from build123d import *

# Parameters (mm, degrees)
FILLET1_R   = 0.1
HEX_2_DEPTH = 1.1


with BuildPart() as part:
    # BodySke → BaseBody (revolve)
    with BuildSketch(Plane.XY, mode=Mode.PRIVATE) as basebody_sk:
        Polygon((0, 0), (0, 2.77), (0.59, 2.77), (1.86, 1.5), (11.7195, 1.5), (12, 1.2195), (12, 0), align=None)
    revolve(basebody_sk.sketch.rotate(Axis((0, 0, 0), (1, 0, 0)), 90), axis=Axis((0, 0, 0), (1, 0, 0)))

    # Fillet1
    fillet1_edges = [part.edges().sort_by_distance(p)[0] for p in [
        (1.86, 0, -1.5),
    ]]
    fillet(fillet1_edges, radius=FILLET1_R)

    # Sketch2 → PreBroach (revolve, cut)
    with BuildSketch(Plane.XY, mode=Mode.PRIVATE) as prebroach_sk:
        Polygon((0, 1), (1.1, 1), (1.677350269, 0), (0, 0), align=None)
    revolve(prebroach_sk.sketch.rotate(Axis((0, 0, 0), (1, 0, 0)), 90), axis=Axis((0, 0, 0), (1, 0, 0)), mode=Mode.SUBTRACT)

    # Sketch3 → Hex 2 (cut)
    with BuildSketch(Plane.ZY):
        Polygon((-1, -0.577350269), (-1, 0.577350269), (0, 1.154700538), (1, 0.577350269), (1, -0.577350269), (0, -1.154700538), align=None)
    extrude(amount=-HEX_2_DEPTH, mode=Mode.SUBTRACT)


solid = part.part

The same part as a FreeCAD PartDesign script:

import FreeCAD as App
import Part
import Sketcher

V = App.Vector
Q = App.Units.Quantity


def edges_at(feature, points):
    """Names of the edges that pass closest to the given points."""
    edges = feature.Shape.Edges
    near = lambda p: min(range(len(edges)), key=lambda i: edges[i].distToShape(Part.Vertex(*p))[0])
    return sorted({f"Edge{near(p) + 1}" for p in points})


def add_polygon(sketch, points):
    """Adds a closed chain of lines whose ends are joined by coincident constraints."""
    first, n = sketch.GeometryCount, len(points)
    for a, b in zip(points, points[1:] + points[:1]):
        sketch.addGeometry(Part.LineSegment(App.Vector(*a, 0), App.Vector(*b, 0)), False)
    for i in range(n):
        sketch.addConstraint(Sketcher.Constraint("Coincident", first + i, 2, first + (i + 1) % n, 1))

doc = App.newDocument("Part")
params = doc.addObject("Spreadsheet::Sheet", "Params")
for row, (alias, value) in enumerate([
    ("sketch1_width", "12 mm"),
    ("sketch1_width2", "0.59 mm"),
    ("sketch1_height", "2.77 mm"),
    ("revolution_angle", "360 deg"),
    ("fillet_radius", "0.1 mm"),
    ("sketch2_height", "1 mm"),
    ("sketch2_width", "1.1 mm"),
    ("groove_angle", "360 deg"),
    ("pocket1_length", "1.1 mm"),
], start=1):
    params.set(f"A{row}", alias)
    params.set(f"B{row}", "=" + value)
    params.setAlias(f"B{row}", alias)

body = doc.addObject("PartDesign::Body", "Body")

# Sketch on XY plane
sketch1 = doc.addObject("Sketcher::SketchObject", "Sketch")
body.addObject(sketch1)
sketch1.AttachmentSupport = (doc.XY_Plane, [""])
sketch1.MapMode = "FlatFace"
add_polygon(sketch1, [(0, 2.77), (0, 0), (12, 0), (12, 1.22), (11.72, 1.5), (1.86, 1.5), (0.59, 2.77)])  # lines 0-6
sketch1.addConstraint(Sketcher.Constraint("Vertical", 0))
sketch1.addConstraint(Sketcher.Constraint("Horizontal", 1))
sketch1.addConstraint(Sketcher.Constraint("Vertical", 2))
sketch1.addConstraint(Sketcher.Constraint("Horizontal", 4))
sketch1.addConstraint(Sketcher.Constraint("Horizontal", 6))
sketch1.addConstraint(Sketcher.Constraint("Coincident", 0, 2, -1, 1))
sketch1.addConstraint(Sketcher.Constraint("Parallel", 3, 5))
sketch1.addConstraint(Sketcher.Constraint("DistanceX", 1, 1, 1, 2, 12.0))
sketch1.addConstraint(Sketcher.Constraint("Angle", 3, Q("135 deg")))
sketch1.addConstraint(Sketcher.Constraint("DistanceX", 6, 2, 6, 1, 0.59))
sketch1.addConstraint(Sketcher.Constraint("DistanceY", 0, 2, 0, 1, 2.77))
sketch1.addConstraint(Sketcher.Constraint("DistanceY", -1, 1, 3, 2, 1.5))
sketch1.addConstraint(Sketcher.Constraint("DistanceX", 4, 2, 4, 1, 9.8595))
sketch1.setExpression("Constraints[14]", "Params.sketch1_width")
sketch1.setExpression("Constraints[16]", "Params.sketch1_width2")
sketch1.setExpression("Constraints[17]", "Params.sketch1_height")
revolution = doc.addObject("PartDesign::Revolution", "Revolution")
body.addObject(revolution)
revolution.Profile = sketch1
revolution.ReferenceAxis = (sketch1, ["H_Axis"])
revolution.setExpression("Angle", "Params.revolution_angle")
doc.recompute()

fillet = doc.addObject("PartDesign::Fillet", "Fillet")
body.addObject(fillet)
fillet.Base = (revolution, edges_at(revolution, [(1.86, 0, -1.5)]))
fillet.setExpression("Radius", "Params.fillet_radius")

# Sketch on XY plane
sketch2 = doc.addObject("Sketcher::SketchObject", "Sketch001")
body.addObject(sketch2)
sketch2.AttachmentSupport = (doc.XY_Plane, [""])
sketch2.MapMode = "FlatFace"
add_polygon(sketch2, [(1.1, 1), (0, 1), (0, 0), (1.7, 0)])  # lines 0-3
sketch2.addConstraint(Sketcher.Constraint("Horizontal", 0))
sketch2.addConstraint(Sketcher.Constraint("Vertical", 1))
sketch2.addConstraint(Sketcher.Constraint("Horizontal", 2))
sketch2.addConstraint(Sketcher.Constraint("Coincident", 1, 2, -1, 1))
sketch2.addConstraint(Sketcher.Constraint("DistanceY", 1, 2, 1, 1, 1.0))
sketch2.addConstraint(Sketcher.Constraint("Angle", 3, Q("120 deg")))
sketch2.addConstraint(Sketcher.Constraint("DistanceX", 0, 2, 0, 1, 1.1))
sketch2.setExpression("Constraints[8]", "Params.sketch2_height")
sketch2.setExpression("Constraints[10]", "Params.sketch2_width")
groove = doc.addObject("PartDesign::Groove", "Groove")
body.addObject(groove)
groove.Profile = sketch2
groove.ReferenceAxis = (sketch2, ["H_Axis"])
groove.setExpression("Angle", "Params.groove_angle")

# Sketch on YZ plane
sketch3 = doc.addObject("Sketcher::SketchObject", "Sketch002")
body.addObject(sketch3)
sketch3.AttachmentSupport = (doc.YZ_Plane, [""])
sketch3.MapMode = "FlatFace"
add_polygon(sketch3, [(0.6, -1), (-0.6, -1), (-1.2, 0), (-0.6, 1), (0.6, 1), (1.2, 0)])  # lines 0-5
sketch3.addConstraint(Sketcher.Constraint("Horizontal", 0))
sketch3.addConstraint(Sketcher.Constraint("Horizontal", 3))
sketch3.addConstraint(Sketcher.Constraint("Symmetric", 0, 2, 3, 2, -1, 1))
sketch3.addConstraint(Sketcher.Constraint("Symmetric", 1, 2, 4, 2, -1, 1))
sketch3.addConstraint(Sketcher.Constraint("PointOnObject", 1, 2, -1))
sketch3.addConstraint(Sketcher.Constraint("Parallel", 2, 5))
sketch3.addConstraint(Sketcher.Constraint("Vertical", 0, 2, 2, 2))
sketch3.addConstraint(Sketcher.Constraint("Angle", 1, Q("120 deg")))
sketch3.addConstraint(Sketcher.Constraint("DistanceY", 0, 2, -1, 1, 1.0))
sketch3.addConstraint(Sketcher.Constraint("DistanceX", 0, 2, 0, 1, 1.154701))
pocket1 = doc.addObject("PartDesign::Pocket", "Pocket")
body.addObject(pocket1)
pocket1.Profile = sketch3
pocket1.setExpression("Length", "Params.pocket1_length")
pocket1.Reversed = True

doc.recompute()
